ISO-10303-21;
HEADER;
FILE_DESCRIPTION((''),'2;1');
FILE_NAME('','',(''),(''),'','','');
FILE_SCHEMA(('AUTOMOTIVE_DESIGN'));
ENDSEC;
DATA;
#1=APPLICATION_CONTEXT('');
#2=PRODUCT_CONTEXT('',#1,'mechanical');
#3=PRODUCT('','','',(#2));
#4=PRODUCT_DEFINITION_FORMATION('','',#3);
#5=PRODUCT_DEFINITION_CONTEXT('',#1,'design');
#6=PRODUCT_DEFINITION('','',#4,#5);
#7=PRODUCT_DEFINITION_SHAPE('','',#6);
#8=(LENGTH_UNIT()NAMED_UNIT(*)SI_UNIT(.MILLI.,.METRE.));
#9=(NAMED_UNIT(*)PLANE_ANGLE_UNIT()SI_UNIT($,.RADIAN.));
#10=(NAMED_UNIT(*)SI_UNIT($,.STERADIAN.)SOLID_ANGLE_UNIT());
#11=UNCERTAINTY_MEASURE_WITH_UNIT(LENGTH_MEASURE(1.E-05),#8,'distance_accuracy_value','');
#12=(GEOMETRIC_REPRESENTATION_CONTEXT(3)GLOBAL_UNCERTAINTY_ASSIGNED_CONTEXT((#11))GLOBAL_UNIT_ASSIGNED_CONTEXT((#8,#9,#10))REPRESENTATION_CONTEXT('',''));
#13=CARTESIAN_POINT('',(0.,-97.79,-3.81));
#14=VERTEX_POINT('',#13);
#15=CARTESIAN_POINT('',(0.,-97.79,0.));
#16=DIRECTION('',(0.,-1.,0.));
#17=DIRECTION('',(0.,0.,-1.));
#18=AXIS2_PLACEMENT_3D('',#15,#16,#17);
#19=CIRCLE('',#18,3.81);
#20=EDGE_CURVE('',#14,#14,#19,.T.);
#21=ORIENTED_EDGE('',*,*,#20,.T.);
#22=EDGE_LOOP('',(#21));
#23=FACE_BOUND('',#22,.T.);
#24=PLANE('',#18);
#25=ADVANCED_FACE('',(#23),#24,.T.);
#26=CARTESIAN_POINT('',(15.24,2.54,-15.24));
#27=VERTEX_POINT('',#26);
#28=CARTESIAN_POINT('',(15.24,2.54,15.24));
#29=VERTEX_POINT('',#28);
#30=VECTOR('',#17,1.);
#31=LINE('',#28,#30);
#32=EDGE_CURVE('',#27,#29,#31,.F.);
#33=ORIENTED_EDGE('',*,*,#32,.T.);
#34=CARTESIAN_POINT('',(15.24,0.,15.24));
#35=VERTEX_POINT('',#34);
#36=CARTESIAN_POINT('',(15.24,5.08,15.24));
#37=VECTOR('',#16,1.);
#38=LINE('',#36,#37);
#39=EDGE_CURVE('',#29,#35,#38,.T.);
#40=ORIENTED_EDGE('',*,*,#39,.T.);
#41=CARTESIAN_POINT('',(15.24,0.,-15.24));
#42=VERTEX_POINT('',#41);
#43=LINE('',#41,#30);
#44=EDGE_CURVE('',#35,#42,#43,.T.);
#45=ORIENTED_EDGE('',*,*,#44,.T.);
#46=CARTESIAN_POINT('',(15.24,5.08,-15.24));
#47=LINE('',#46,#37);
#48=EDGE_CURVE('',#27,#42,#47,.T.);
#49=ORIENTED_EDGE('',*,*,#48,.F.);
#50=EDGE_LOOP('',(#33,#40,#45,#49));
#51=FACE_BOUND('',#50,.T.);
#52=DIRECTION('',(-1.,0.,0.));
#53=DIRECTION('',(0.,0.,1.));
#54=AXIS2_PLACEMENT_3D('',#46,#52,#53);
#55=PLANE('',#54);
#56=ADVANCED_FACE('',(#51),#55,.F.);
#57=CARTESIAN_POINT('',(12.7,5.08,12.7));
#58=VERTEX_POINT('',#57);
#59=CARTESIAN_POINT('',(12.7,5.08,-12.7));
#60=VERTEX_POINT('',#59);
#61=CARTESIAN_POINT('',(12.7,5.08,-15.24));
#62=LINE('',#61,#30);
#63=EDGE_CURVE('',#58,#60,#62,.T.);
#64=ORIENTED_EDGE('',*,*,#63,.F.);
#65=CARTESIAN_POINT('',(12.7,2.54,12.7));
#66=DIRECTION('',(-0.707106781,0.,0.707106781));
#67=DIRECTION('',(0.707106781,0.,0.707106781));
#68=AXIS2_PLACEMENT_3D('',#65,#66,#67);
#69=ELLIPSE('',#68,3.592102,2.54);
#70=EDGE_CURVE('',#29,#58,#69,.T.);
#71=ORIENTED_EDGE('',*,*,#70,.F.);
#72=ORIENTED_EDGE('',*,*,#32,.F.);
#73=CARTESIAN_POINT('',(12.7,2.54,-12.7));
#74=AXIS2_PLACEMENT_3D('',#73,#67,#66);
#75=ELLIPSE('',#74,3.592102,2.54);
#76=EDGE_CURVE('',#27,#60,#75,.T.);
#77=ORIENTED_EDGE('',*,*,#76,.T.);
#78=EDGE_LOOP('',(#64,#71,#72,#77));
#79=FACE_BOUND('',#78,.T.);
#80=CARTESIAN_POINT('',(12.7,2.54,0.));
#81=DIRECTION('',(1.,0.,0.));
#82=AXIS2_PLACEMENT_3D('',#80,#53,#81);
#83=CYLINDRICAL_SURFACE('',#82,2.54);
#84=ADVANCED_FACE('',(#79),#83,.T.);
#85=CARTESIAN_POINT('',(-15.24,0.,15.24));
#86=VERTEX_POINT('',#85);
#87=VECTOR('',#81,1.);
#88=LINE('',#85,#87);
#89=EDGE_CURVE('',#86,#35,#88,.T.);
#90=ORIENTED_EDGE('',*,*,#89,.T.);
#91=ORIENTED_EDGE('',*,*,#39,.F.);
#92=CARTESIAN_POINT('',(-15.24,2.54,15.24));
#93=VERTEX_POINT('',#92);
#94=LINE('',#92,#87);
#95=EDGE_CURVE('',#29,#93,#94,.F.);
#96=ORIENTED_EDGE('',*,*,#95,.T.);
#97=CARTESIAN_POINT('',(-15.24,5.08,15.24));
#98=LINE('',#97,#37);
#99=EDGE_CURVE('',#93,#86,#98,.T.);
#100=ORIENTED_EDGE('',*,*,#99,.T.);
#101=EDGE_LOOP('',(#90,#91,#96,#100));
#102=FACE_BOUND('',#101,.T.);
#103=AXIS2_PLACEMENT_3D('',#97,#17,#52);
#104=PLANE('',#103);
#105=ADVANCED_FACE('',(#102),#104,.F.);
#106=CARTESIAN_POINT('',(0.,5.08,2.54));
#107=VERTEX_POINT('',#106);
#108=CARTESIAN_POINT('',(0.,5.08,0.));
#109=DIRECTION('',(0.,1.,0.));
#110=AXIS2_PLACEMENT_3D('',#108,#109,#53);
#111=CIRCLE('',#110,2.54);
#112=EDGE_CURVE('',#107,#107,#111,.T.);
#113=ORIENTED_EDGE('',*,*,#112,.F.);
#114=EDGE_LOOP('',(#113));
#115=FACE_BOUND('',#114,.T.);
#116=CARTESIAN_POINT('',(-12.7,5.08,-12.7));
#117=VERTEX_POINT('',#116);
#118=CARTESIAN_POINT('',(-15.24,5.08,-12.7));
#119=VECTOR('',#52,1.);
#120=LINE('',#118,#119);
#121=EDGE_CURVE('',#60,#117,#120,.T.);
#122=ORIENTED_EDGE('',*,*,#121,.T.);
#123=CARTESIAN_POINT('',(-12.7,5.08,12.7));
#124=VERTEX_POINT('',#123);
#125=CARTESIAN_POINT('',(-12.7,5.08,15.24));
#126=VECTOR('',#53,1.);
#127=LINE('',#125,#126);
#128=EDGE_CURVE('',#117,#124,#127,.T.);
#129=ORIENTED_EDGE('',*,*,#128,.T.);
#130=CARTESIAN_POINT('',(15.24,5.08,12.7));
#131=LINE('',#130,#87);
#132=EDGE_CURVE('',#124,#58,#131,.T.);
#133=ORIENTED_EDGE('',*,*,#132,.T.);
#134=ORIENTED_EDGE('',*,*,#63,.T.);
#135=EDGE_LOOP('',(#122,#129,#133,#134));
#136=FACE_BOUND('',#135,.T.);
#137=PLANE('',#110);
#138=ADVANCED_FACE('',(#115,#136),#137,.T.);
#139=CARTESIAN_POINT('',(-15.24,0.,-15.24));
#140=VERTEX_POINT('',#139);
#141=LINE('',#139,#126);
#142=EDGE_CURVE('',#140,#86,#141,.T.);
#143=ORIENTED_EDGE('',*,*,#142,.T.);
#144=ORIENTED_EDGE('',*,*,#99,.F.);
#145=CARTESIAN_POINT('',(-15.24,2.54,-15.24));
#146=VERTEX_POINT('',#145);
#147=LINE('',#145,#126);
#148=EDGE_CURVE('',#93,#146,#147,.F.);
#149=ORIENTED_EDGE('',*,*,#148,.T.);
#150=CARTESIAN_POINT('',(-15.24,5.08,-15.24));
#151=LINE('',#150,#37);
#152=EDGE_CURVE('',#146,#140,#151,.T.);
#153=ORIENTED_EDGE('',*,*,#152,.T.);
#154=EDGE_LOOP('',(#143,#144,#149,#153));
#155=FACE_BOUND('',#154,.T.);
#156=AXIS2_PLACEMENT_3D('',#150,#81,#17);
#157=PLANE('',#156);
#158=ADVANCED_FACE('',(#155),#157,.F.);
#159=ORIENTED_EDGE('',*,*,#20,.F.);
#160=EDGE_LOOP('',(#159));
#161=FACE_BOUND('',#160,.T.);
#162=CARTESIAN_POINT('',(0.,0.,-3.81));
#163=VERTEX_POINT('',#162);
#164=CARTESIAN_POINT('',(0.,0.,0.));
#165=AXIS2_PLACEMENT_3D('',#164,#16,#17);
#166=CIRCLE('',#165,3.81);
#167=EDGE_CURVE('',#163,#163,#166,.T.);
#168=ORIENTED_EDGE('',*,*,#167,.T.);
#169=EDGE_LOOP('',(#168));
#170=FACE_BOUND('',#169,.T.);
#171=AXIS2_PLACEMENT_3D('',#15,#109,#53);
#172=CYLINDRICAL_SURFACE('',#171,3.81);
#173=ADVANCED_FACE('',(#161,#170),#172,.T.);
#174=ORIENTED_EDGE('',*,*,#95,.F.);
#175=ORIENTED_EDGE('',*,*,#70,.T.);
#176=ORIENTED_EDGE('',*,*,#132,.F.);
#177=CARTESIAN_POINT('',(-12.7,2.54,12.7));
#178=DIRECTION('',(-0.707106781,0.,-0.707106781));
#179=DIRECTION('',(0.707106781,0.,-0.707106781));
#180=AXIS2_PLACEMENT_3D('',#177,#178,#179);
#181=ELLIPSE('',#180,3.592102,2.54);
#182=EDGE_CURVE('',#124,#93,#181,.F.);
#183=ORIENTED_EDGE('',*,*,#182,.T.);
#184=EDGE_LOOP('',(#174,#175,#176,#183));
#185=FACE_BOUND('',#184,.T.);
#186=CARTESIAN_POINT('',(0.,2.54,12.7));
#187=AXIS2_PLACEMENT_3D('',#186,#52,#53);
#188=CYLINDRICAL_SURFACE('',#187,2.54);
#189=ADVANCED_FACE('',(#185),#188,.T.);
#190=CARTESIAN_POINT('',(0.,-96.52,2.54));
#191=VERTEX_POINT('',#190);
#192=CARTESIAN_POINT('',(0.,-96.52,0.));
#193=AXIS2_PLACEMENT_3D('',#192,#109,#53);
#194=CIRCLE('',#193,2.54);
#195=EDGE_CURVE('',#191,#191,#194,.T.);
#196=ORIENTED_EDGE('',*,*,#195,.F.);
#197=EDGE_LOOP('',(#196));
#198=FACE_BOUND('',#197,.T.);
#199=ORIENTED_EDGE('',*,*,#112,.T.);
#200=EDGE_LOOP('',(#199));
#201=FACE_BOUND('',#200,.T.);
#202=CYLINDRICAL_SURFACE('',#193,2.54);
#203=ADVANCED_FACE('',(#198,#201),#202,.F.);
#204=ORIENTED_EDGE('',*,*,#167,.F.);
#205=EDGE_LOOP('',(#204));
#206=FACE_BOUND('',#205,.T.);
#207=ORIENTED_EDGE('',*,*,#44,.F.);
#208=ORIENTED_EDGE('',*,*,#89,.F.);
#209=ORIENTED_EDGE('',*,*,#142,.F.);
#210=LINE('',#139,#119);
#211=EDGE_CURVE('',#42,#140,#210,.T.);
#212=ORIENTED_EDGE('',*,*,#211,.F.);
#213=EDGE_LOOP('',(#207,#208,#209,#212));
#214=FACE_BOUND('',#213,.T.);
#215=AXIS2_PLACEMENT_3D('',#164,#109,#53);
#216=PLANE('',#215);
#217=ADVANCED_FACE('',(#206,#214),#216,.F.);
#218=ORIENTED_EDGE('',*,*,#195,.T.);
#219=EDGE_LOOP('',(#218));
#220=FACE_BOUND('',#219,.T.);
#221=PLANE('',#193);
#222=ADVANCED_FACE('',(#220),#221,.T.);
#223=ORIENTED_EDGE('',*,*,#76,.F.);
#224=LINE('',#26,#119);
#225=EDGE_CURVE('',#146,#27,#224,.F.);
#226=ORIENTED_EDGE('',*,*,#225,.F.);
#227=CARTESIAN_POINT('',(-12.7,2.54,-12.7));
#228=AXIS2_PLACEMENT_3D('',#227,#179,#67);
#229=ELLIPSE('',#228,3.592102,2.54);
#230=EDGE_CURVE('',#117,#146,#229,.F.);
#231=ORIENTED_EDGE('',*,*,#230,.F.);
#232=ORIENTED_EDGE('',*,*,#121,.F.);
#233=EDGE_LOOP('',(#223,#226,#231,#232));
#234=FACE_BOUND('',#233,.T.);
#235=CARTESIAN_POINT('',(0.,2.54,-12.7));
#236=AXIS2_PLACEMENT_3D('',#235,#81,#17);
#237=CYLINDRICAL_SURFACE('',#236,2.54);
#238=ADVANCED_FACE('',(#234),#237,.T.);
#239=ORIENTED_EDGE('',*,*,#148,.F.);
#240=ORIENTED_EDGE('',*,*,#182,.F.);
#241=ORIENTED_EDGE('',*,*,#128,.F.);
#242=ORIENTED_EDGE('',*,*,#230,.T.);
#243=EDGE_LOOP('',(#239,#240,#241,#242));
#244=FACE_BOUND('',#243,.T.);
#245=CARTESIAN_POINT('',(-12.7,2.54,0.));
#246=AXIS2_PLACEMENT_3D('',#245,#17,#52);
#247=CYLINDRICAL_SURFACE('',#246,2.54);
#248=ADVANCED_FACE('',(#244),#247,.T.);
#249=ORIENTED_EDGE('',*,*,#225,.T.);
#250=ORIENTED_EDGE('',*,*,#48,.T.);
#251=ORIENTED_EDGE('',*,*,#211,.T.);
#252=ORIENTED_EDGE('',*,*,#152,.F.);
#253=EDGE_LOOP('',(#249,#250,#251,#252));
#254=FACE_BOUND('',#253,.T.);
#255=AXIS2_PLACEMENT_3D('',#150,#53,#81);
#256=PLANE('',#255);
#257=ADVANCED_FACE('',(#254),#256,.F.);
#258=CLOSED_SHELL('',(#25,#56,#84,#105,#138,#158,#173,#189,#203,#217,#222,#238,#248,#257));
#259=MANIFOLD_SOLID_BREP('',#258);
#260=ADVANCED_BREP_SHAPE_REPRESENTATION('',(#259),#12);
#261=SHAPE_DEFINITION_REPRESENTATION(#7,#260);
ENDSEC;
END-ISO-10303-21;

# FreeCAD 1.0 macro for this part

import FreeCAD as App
import Part
import Sketcher
Q = App.Units.Quantity


def edges_at(feature, points):
    """Names of the edges that pass closest to the given points."""
    edges = feature.Shape.Edges
    near = lambda p: min(range(len(edges)), key=lambda i: edges[i].distToShape(Part.Vertex(*p))[0])
    return sorted({f"Edge{near(p) + 1}" for p in points})


def add_polygon(sketch, points):
    """Adds a closed chain of lines whose ends are joined by coincident constraints."""
    first, n = sketch.GeometryCount, len(points)
    for a, b in zip(points, points[1:] + points[:1]):
        sketch.addGeometry(Part.LineSegment(App.Vector(*a, 0), App.Vector(*b, 0)), False)
    for i in range(n):
        sketch.addConstraint(Sketcher.Constraint("Coincident", first + i, 2, first + (i + 1) % n, 1))

doc = App.newDocument("Part")
params = doc.addObject("Spreadsheet::Sheet", "Params")
for row, (alias, value) in enumerate([
    ("sketch1_width", "1.2 in"),
    ("pad1_length", "0.2 in"),
    ("fillet_radius", "0.1 in"),
    ("sketch2_diameter", "0.3 in"),
    ("pad2_length", "3.85 in"),
    ("sketch3_diameter", "0.2 in"),
    ("pocket1_length", "4 in"),
], start=1):
    params.set(f"A{row}", alias)
    params.set(f"B{row}", "=" + value)
    params.setAlias(f"B{row}", alias)

body = doc.addObject("PartDesign::Body", "Body")

# Sketch on XZ plane
sketch1 = doc.addObject("Sketcher::SketchObject", "Sketch")
body.addObject(sketch1)
sketch1.AttachmentSupport = (doc.XZ_Plane, [""])
sketch1.MapMode = "FlatFace"
add_polygon(sketch1, [(-15, -15), (-15, 15), (15, 15), (15, -15)])  # lines 0-3
sketch1.addConstraint([
    Sketcher.Constraint("Vertical", 0),
    Sketcher.Constraint("Horizontal", 1),
    Sketcher.Constraint("Vertical", 2),
    Sketcher.Constraint("Horizontal", 3),
    Sketcher.Constraint("Symmetric", 0, 2, 2, 2, -1, 1),
    Sketcher.Constraint("Equal", 3, 0),
    Sketcher.Constraint("DistanceX", 1, 1, 1, 2, Q("1.2 in")),
])
sketch1.setExpression("Constraints[10]", "Params.sketch1_width")
pad1 = doc.addObject("PartDesign::Pad", "Pad")
body.addObject(pad1)
pad1.Profile = sketch1
pad1.setExpression("Length", "Params.pad1_length")
pad1.Reversed = True
doc.recompute()

fillet = doc.addObject("PartDesign::Fillet", "Fillet")
body.addObject(fillet)
fillet.Base = (pad1, edges_at(pad1, [
    (-15.24, 5.08, 0),
    (0, 5.08, 15.24),
    (15.24, 5.08, 0),
    (0, 5.08, -15.24),
]))
fillet.setExpression("Radius", "Params.fillet_radius")

# Sketch on XZ plane
sketch2 = doc.addObject("Sketcher::SketchObject", "Sketch001")
body.addObject(sketch2)
sketch2.AttachmentSupport = (doc.XZ_Plane, [""])
sketch2.MapMode = "FlatFace"
sketch2.addGeometry(Part.Circle(App.Vector(0, 0, 0), App.Vector(0, 0, 1), 3.8), False)
sketch2.addConstraint([
    Sketcher.Constraint("Coincident", 0, 3, -1, 1),
    Sketcher.Constraint("Diameter", 0, Q("0.3 in")),
])
sketch2.setExpression("Constraints[1]", "Params.sketch2_diameter")
pad2 = doc.addObject("PartDesign::Pad", "Pad001")
body.addObject(pad2)
pad2.Profile = sketch2
pad2.setExpression("Length", "Params.pad2_length")

# Sketch on XZ plane
sketch3 = doc.addObject("Sketcher::SketchObject", "Sketch002")
body.addObject(sketch3)
sketch3.AttachmentSupport = (doc.XZ_Plane, [""])
sketch3.MapMode = "FlatFace"
sketch3.AttachmentOffset = App.Placement(App.Vector(0, 0, -0.2 * 25.4), App.Rotation())
sketch3.addGeometry(Part.Circle(App.Vector(0, 0, 0), App.Vector(0, 0, 1), 2.5), False)
sketch3.addConstraint([
    Sketcher.Constraint("Coincident", 0, 3, -1, 1),
    Sketcher.Constraint("Diameter", 0, Q("0.2 in")),
])
sketch3.setExpression("Constraints[1]", "Params.sketch3_diameter")
pocket1 = doc.addObject("PartDesign::Pocket", "Pocket")
body.addObject(pocket1)
pocket1.Profile = sketch3
pocket1.setExpression("Length", "Params.pocket1_length")
pocket1.Reversed = True

doc.recompute()
